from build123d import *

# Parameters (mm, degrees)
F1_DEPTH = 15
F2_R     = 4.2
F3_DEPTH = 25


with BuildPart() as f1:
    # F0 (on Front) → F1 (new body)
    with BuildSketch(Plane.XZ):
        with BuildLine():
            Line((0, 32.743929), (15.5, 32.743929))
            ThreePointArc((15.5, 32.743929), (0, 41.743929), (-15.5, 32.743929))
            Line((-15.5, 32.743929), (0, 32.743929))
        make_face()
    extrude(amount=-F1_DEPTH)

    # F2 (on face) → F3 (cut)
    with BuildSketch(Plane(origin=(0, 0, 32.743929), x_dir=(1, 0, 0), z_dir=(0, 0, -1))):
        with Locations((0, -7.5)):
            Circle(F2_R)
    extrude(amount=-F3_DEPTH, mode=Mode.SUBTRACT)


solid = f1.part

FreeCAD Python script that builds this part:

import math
import FreeCAD as App
import Part
import Sketcher

doc = App.newDocument("Part")
params = doc.addObject("Spreadsheet::Sheet", "Params")
for row, (alias, value) in enumerate([
    ("sketch1_width", "31 mm"),
    ("pad1_length", "15 mm"),
    ("sketch2_diameter", "8.4 mm"),
    ("pocket1_length", "25 mm"),
], start=1):
    params.set(f"A{row}", alias)
    params.set(f"B{row}", "=" + value)
    params.setAlias(f"B{row}", alias)

body = doc.addObject("PartDesign::Body", "Body")

# Sketch on XZ plane
sketch1 = doc.addObject("Sketcher::SketchObject", "Sketch")
body.addObject(sketch1)
sketch1.AttachmentSupport = (doc.XZ_Plane, [""])
sketch1.MapMode = "FlatFace"
sketch1.addGeometry(Part.ArcOfCircle(Part.Circle(App.Vector(0, 23.896707, 0), App.Vector(0, 0, 1), 17.847222), math.radians(29.717229), math.radians(150.282771)), False)
sketch1.addGeometry(Part.LineSegment(App.Vector(-15.5, 32.743929, 0), App.Vector(15.5, 32.743929, 0)), False)
sketch1.addConstraint(Sketcher.Constraint("Coincident", 0, 1, 1, 2))
sketch1.addConstraint(Sketcher.Constraint("Coincident", 1, 1, 0, 2))
sketch1.addConstraint(Sketcher.Constraint("Horizontal", 1))
sketch1.addConstraint(Sketcher.Constraint("PointOnObject", 0, 3, -2))
sketch1.addConstraint(Sketcher.Constraint("DistanceX", 1, 1, 1, 2, 31.0))
sketch1.addConstraint(Sketcher.Constraint("Radius", 0, 17.847222))
sketch1.addConstraint(Sketcher.Constraint("DistanceY", -1, 1, 0, 1, 32.743929))
sketch1.setExpression("Constraints[4]", "Params.sketch1_width")
pad1 = doc.addObject("PartDesign::Pad", "Pad")
body.addObject(pad1)
pad1.Profile = sketch1
pad1.setExpression("Length", "Params.pad1_length")
pad1.Reversed = True

# Sketch on XY plane
sketch2 = doc.addObject("Sketcher::SketchObject", "Sketch001")
body.addObject(sketch2)
sketch2.AttachmentSupport = (doc.XY_Plane, [""])
sketch2.MapMode = "FlatFace"
sketch2.AttachmentOffset = App.Placement(App.Vector(0, 0, 32.743929), App.Rotation())
sketch2.addGeometry(Part.Circle(App.Vector(0, 7.5, 0), App.Vector(0, 0, 1), 4.2), False)
sketch2.addConstraint(Sketcher.Constraint("PointOnObject", 0, 3, -2))
sketch2.addConstraint(Sketcher.Constraint("Diameter", 0, 8.4))
sketch2.addConstraint(Sketcher.Constraint("DistanceY", -1, 1, 0, 3, 7.5))
sketch2.setExpression("Constraints[1]", "Params.sketch2_diameter")
pocket1 = doc.addObject("PartDesign::Pocket", "Pocket")
body.addObject(pocket1)
pocket1.Profile = sketch2
pocket1.setExpression("Length", "Params.pocket1_length")
pocket1.Reversed = True

doc.recompute()
